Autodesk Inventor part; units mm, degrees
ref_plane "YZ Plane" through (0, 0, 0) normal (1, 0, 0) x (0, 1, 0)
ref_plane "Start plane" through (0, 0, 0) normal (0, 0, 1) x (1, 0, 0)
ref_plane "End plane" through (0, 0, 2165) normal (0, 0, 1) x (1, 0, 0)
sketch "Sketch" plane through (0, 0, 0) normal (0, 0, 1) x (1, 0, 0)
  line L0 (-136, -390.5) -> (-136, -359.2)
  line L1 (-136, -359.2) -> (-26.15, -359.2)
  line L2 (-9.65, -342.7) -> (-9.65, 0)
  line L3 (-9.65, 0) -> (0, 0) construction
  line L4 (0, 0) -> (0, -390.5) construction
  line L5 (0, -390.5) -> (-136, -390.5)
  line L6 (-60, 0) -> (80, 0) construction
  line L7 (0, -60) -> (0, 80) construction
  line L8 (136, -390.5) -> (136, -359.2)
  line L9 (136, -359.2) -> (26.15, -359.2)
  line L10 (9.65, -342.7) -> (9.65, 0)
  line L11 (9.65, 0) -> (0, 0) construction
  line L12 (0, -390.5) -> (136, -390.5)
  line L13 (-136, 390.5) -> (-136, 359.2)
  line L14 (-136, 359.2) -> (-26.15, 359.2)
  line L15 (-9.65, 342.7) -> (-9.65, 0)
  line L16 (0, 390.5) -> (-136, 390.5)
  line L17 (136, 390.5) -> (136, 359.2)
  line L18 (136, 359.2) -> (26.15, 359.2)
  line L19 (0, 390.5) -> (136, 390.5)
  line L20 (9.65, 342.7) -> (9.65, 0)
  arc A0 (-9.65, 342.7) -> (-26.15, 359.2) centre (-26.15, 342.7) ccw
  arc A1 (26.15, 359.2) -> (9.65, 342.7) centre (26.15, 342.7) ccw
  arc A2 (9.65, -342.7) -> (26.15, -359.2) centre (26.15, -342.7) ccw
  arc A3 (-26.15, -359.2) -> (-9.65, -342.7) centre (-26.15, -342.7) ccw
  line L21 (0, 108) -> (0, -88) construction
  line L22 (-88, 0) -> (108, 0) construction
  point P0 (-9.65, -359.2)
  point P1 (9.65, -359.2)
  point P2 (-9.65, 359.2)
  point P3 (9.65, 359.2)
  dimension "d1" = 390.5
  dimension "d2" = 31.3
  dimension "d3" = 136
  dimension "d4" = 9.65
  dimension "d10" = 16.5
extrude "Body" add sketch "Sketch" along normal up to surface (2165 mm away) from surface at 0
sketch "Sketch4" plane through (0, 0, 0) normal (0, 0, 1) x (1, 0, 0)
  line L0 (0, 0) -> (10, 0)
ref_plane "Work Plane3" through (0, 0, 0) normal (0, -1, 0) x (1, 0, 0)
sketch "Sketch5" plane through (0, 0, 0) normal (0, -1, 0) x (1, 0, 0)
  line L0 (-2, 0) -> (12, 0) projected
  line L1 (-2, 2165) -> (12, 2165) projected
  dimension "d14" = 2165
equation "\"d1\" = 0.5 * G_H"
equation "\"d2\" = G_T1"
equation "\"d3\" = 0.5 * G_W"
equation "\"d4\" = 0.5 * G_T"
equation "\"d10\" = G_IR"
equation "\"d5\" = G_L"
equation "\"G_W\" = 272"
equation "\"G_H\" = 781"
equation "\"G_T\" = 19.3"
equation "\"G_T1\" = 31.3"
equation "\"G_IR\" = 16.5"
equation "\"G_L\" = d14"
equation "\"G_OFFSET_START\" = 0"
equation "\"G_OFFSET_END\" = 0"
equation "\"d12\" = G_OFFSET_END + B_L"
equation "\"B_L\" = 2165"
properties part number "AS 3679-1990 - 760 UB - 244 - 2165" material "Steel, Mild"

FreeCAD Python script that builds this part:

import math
import FreeCAD as App
import Part
import Sketcher

V = App.Vector

doc = App.newDocument("Part")
body = doc.addObject("PartDesign::Body", "Body")

sketch1 = doc.addObject("Sketcher::SketchObject", "Sketch")
body.addObject(sketch1)
sketch1.AttachmentSupport = (doc.XY_Plane, [""])
sketch1.MapMode = "FlatFace"
sketch1.addGeometry([
    Part.LineSegment(V(-136, -359.2, 0), V(-136, -390.5, 0)),
    Part.LineSegment(V(-136, -390.5, 0), V(136, -390.5, 0)),
    Part.LineSegment(V(136, -390.5, 0), V(136, -359.2, 0)),
    Part.LineSegment(V(136, -359.2, 0), V(26.15, -359.2, 0)),
    Part.ArcOfCircle(Part.Circle(V(26.15, -342.7, 0), V(0, 0, 1), 16.5), math.radians(180), math.radians(270)),
    Part.LineSegment(V(9.65, -342.7, 0), V(9.65, 342.7, 0)),
    Part.ArcOfCircle(Part.Circle(V(26.15, 342.7, 0), V(0, 0, 1), 16.5), math.radians(90), math.radians(180)),
    Part.LineSegment(V(26.15, 359.2, 0), V(136, 359.2, 0)),
    Part.LineSegment(V(136, 359.2, 0), V(136, 390.5, 0)),
    Part.LineSegment(V(136, 390.5, 0), V(-136, 390.5, 0)),
    Part.LineSegment(V(-136, 390.5, 0), V(-136, 359.2, 0)),
    Part.LineSegment(V(-136, 359.2, 0), V(-26.15, 359.2, 0)),
    Part.ArcOfCircle(Part.Circle(V(-26.15, 342.7, 0), V(0, 0, 1), 16.5), math.radians(0), math.radians(90)),
    Part.LineSegment(V(-9.65, 342.7, 0), V(-9.65, -342.7, 0)),
    Part.ArcOfCircle(Part.Circle(V(-26.15, -342.7, 0), V(0, 0, 1), 16.5), math.radians(-90), math.radians(0)),
    Part.LineSegment(V(-26.15, -359.2, 0), V(-136, -359.2, 0)),
], False)
sketch1.addConstraint([
    Sketcher.Constraint("Coincident", 0, 2, 1, 1),
    Sketcher.Constraint("Coincident", 1, 2, 2, 1),
    Sketcher.Constraint("Coincident", 2, 2, 3, 1),
    Sketcher.Constraint("Tangent", 3, 2, 4, 2),
    Sketcher.Constraint("Tangent", 4, 1, 5, 1),
    Sketcher.Constraint("Tangent", 5, 2, 6, 2),
    Sketcher.Constraint("Tangent", 6, 1, 7, 1),
    Sketcher.Constraint("Coincident", 7, 2, 8, 1),
    Sketcher.Constraint("Coincident", 8, 2, 9, 1),
    Sketcher.Constraint("Coincident", 9, 2, 10, 1),
    Sketcher.Constraint("Coincident", 10, 2, 11, 1),
    Sketcher.Constraint("Tangent", 11, 2, 12, 2),
    Sketcher.Constraint("Tangent", 12, 1, 13, 1),
    Sketcher.Constraint("Tangent", 13, 2, 14, 2),
    Sketcher.Constraint("Tangent", 14, 1, 15, 1),
    Sketcher.Constraint("Coincident", 15, 2, 0, 1),
    Sketcher.Constraint("Vertical", 0),
    Sketcher.Constraint("Horizontal", 1),
    Sketcher.Constraint("Vertical", 2),
    Sketcher.Constraint("Horizontal", 3),
    Sketcher.Constraint("Vertical", 5),
    Sketcher.Constraint("Horizontal", 7),
    Sketcher.Constraint("Vertical", 8),
    Sketcher.Constraint("Horizontal", 9),
    Sketcher.Constraint("Vertical", 10),
    Sketcher.Constraint("Horizontal", 11),
    Sketcher.Constraint("Vertical", 13),
    Sketcher.Constraint("Horizontal", 15),
    Sketcher.Constraint("Equal", 4, 6),
    Sketcher.Constraint("Equal", 6, 12),
    Sketcher.Constraint("Equal", 12, 14),
    Sketcher.Constraint("Symmetric", 4, 3, 12, 3, -1, 1),
    Sketcher.Constraint("Symmetric", 0, 2, 8, 2, -1, 1),
    Sketcher.Constraint("Symmetric", 7, 2, 10, 2, -2),
    Sketcher.Constraint("Symmetric", 2, 2, 15, 2, -2),
    Sketcher.Constraint("Radius", 4, 16.5),
    Sketcher.Constraint("DistanceY", 0, 2, 0, 1, 31.3),
    Sketcher.Constraint("DistanceX", 0, 2, -1, 1, 136.0),
    Sketcher.Constraint("DistanceY", 0, 2, -1, 1, 390.5),
    Sketcher.Constraint("DistanceX", -1, 1, 4, 1, 9.65),
])
pad1 = doc.addObject("PartDesign::Pad", "Pad")
body.addObject(pad1)
pad1.Profile = sketch1
pad1.Length = 2165

doc.recompute()
